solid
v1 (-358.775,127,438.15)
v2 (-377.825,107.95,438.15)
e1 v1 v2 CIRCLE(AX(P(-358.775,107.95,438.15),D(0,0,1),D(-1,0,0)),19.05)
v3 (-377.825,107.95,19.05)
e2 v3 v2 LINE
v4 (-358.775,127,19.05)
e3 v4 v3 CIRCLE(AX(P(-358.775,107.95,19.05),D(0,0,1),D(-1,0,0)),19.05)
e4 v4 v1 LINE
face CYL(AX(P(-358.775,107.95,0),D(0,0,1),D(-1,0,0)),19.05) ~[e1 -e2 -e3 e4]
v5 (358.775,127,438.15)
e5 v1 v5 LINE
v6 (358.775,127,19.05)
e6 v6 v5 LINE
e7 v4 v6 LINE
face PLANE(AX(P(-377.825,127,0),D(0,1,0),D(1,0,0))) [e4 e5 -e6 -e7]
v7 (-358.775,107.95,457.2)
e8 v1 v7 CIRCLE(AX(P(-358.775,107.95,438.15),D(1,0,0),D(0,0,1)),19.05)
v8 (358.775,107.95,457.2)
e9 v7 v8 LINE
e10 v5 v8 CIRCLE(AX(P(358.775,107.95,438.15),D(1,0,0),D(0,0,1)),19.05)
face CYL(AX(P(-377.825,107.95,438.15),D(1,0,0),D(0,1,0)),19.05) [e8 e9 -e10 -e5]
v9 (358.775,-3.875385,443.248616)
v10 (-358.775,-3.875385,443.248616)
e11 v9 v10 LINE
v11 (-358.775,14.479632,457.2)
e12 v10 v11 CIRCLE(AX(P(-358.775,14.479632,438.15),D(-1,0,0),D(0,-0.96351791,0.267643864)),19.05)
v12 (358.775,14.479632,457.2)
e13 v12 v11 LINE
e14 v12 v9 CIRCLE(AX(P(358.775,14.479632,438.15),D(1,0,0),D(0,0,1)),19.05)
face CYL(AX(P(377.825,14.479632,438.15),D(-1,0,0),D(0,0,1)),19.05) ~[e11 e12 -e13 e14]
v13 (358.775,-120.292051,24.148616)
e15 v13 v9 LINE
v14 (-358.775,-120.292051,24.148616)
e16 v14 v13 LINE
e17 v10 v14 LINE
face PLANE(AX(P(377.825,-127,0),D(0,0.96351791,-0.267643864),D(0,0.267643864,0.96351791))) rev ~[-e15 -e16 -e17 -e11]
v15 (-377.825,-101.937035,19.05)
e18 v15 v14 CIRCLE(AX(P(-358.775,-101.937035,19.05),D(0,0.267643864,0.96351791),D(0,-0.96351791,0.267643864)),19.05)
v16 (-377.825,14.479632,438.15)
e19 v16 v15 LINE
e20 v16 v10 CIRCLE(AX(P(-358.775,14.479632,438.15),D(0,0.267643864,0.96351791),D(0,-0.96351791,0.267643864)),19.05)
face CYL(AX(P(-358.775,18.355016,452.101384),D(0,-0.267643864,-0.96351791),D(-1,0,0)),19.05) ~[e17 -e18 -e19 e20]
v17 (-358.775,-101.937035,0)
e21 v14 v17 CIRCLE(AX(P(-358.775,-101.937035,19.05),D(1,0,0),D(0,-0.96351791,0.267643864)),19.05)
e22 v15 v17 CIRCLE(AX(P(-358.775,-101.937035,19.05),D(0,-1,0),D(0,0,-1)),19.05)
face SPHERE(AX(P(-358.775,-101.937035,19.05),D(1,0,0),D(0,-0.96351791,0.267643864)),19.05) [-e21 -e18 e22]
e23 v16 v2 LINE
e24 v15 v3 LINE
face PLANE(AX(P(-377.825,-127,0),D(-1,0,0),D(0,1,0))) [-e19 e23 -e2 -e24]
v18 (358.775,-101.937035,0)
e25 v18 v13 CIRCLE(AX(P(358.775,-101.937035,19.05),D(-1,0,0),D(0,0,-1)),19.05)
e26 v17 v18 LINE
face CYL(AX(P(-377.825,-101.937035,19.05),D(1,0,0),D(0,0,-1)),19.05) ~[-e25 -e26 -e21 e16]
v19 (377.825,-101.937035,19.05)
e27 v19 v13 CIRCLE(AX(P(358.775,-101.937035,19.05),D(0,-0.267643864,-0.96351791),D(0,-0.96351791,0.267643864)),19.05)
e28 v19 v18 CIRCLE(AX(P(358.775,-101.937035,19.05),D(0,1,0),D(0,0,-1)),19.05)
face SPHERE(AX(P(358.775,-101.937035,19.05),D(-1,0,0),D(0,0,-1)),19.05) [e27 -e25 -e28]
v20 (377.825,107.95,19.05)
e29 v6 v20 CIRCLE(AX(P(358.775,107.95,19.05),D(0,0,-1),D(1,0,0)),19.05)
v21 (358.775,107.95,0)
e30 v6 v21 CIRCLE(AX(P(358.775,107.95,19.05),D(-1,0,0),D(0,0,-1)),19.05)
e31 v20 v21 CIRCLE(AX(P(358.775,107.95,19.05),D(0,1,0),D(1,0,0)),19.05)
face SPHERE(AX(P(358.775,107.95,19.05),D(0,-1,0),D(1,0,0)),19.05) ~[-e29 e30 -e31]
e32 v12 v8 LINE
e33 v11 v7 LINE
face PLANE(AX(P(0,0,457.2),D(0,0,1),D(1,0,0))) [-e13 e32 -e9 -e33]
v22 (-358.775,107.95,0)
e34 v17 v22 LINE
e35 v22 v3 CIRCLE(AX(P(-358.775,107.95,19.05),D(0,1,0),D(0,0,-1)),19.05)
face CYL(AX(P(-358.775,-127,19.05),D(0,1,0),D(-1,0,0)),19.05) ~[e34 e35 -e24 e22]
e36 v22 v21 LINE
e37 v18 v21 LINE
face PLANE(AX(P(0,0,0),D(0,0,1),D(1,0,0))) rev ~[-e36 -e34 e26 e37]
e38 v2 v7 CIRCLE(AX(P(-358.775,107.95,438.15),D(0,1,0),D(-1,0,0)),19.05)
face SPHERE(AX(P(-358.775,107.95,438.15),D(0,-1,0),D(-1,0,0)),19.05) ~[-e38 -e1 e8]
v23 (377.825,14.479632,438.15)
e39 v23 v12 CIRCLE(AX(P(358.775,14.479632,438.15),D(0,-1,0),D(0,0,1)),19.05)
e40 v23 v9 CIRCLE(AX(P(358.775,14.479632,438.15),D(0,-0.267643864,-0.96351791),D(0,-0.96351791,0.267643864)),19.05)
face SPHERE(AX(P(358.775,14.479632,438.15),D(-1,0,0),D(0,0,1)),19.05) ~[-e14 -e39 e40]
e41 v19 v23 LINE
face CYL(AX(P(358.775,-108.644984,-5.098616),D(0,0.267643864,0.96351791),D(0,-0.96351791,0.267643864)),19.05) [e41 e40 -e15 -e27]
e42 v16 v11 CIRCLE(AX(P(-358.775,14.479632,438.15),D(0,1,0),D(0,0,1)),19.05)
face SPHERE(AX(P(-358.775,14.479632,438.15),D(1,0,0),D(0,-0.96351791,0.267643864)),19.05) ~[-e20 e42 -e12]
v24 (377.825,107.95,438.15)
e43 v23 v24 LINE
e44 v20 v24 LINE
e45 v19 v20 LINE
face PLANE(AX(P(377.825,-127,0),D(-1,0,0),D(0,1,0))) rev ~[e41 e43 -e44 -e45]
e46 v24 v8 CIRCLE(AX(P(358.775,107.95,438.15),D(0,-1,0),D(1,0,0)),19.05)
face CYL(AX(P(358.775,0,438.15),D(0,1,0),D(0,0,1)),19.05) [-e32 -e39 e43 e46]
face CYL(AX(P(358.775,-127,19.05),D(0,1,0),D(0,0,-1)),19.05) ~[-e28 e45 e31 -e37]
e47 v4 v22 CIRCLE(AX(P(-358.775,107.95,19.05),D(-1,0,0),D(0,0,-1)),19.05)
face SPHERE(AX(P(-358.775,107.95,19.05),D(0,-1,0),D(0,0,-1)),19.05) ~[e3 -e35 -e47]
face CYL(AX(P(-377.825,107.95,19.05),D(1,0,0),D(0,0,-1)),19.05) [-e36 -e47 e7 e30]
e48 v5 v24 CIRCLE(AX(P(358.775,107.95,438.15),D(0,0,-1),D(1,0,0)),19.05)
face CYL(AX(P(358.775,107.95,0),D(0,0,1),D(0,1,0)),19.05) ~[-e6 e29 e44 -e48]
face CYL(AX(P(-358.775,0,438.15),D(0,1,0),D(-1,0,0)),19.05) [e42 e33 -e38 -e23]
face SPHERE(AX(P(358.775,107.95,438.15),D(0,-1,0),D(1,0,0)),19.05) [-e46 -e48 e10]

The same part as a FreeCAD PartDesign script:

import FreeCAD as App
import Part
import Sketcher
Q = App.Units.Quantity


def add_polygon(sketch, points):
    """Adds a closed chain of lines whose ends are joined by coincident constraints."""
    first, n = sketch.GeometryCount, len(points)
    for a, b in zip(points, points[1:] + points[:1]):
        sketch.addGeometry(Part.LineSegment(App.Vector(*a, 0), App.Vector(*b, 0)), False)
    for i in range(n):
        sketch.addConstraint(Sketcher.Constraint("Coincident", first + i, 2, first + (i + 1) % n, 1))

doc = App.newDocument("Part")
params = doc.addObject("Spreadsheet::Sheet", "Params")
for row, (alias, value) in enumerate([
    ("sketch1_height", "10 in"),
    ("sketch1_width", "29.75 in"),
    ("pad1_length", "18 in"),
    ("sketch2_width", "5 in"),
    ("sketch2_height", "18 in"),
    ("fillet_radius", "0.75 in"),
], start=1):
    params.set(f"A{row}", alias)
    params.set(f"B{row}", "=" + value)
    params.setAlias(f"B{row}", alias)

body = doc.addObject("PartDesign::Body", "Body")

# Sketch on XY plane
sketch1 = body.newObject("Sketcher::SketchObject", "Sketch")
sketch1.AttachmentSupport = (doc.getObject("XY_Plane"), [""])
sketch1.MapMode = "FlatFace"
add_polygon(sketch1, [(-378, 127), (-378, -127), (378, -127), (378, 127)])  # lines 0-3
sketch1.addConstraint(Sketcher.Constraint("Vertical", 0))
sketch1.addConstraint(Sketcher.Constraint("Horizontal", 1))
sketch1.addConstraint(Sketcher.Constraint("Vertical", 2))
sketch1.addConstraint(Sketcher.Constraint("Horizontal", 3))
sketch1.addConstraint(Sketcher.Constraint("Symmetric", 0, 2, 2, 2, -1, 1))
sketch1.addConstraint(Sketcher.Constraint("DistanceY", 0, 2, 0, 1, Q("10 in")))
sketch1.addConstraint(Sketcher.Constraint("DistanceX", 1, 1, 1, 2, Q("29.75 in")))
sketch1.setExpression("Constraints[9]", "Params.sketch1_height")
sketch1.setExpression("Constraints[10]", "Params.sketch1_width")
pad1 = body.newObject("PartDesign::Pad", "Pad")
pad1.Profile = sketch1
pad1.setExpression("Length", "Params.pad1_length")

# Sketch on YZ plane
sketch2 = body.newObject("Sketcher::SketchObject", "Sketch001")
sketch2.AttachmentSupport = (doc.getObject("YZ_Plane"), [""])
sketch2.MapMode = "FlatFace"
sketch2.AttachmentOffset = App.Placement(App.Vector(0, 0, 14.875 * 25.4), App.Rotation())
add_polygon(sketch2, [(-127, 457), (-127, 0), (0, 457)])  # lines 0-2
sketch2.addConstraint(Sketcher.Constraint("Vertical", 0))
sketch2.addConstraint(Sketcher.Constraint("Horizontal", 2))
sketch2.addConstraint(Sketcher.Constraint("PointOnObject", 0, 2, -1))
sketch2.addConstraint(Sketcher.Constraint("PointOnObject", 1, 2, -2))
sketch2.addConstraint(Sketcher.Constraint("DistanceX", 2, 2, 2, 1, Q("5 in")))
sketch2.addConstraint(Sketcher.Constraint("DistanceY", 0, 2, 0, 1, Q("18 in")))
sketch2.setExpression("Constraints[7]", "Params.sketch2_width")
sketch2.setExpression("Constraints[8]", "Params.sketch2_height")
pocket1 = body.newObject("PartDesign::Pocket", "Pocket")
pocket1.Profile = sketch2
pocket1.Type = "ThroughAll"
doc.recompute()

fillet = body.newObject("PartDesign::Fillet", "Fillet")
fillet.Base = (pocket1, ["Edge1"])
fillet.UseAllEdges = True
fillet.setExpression("Radius", "Params.fillet_radius")

doc.recompute()
